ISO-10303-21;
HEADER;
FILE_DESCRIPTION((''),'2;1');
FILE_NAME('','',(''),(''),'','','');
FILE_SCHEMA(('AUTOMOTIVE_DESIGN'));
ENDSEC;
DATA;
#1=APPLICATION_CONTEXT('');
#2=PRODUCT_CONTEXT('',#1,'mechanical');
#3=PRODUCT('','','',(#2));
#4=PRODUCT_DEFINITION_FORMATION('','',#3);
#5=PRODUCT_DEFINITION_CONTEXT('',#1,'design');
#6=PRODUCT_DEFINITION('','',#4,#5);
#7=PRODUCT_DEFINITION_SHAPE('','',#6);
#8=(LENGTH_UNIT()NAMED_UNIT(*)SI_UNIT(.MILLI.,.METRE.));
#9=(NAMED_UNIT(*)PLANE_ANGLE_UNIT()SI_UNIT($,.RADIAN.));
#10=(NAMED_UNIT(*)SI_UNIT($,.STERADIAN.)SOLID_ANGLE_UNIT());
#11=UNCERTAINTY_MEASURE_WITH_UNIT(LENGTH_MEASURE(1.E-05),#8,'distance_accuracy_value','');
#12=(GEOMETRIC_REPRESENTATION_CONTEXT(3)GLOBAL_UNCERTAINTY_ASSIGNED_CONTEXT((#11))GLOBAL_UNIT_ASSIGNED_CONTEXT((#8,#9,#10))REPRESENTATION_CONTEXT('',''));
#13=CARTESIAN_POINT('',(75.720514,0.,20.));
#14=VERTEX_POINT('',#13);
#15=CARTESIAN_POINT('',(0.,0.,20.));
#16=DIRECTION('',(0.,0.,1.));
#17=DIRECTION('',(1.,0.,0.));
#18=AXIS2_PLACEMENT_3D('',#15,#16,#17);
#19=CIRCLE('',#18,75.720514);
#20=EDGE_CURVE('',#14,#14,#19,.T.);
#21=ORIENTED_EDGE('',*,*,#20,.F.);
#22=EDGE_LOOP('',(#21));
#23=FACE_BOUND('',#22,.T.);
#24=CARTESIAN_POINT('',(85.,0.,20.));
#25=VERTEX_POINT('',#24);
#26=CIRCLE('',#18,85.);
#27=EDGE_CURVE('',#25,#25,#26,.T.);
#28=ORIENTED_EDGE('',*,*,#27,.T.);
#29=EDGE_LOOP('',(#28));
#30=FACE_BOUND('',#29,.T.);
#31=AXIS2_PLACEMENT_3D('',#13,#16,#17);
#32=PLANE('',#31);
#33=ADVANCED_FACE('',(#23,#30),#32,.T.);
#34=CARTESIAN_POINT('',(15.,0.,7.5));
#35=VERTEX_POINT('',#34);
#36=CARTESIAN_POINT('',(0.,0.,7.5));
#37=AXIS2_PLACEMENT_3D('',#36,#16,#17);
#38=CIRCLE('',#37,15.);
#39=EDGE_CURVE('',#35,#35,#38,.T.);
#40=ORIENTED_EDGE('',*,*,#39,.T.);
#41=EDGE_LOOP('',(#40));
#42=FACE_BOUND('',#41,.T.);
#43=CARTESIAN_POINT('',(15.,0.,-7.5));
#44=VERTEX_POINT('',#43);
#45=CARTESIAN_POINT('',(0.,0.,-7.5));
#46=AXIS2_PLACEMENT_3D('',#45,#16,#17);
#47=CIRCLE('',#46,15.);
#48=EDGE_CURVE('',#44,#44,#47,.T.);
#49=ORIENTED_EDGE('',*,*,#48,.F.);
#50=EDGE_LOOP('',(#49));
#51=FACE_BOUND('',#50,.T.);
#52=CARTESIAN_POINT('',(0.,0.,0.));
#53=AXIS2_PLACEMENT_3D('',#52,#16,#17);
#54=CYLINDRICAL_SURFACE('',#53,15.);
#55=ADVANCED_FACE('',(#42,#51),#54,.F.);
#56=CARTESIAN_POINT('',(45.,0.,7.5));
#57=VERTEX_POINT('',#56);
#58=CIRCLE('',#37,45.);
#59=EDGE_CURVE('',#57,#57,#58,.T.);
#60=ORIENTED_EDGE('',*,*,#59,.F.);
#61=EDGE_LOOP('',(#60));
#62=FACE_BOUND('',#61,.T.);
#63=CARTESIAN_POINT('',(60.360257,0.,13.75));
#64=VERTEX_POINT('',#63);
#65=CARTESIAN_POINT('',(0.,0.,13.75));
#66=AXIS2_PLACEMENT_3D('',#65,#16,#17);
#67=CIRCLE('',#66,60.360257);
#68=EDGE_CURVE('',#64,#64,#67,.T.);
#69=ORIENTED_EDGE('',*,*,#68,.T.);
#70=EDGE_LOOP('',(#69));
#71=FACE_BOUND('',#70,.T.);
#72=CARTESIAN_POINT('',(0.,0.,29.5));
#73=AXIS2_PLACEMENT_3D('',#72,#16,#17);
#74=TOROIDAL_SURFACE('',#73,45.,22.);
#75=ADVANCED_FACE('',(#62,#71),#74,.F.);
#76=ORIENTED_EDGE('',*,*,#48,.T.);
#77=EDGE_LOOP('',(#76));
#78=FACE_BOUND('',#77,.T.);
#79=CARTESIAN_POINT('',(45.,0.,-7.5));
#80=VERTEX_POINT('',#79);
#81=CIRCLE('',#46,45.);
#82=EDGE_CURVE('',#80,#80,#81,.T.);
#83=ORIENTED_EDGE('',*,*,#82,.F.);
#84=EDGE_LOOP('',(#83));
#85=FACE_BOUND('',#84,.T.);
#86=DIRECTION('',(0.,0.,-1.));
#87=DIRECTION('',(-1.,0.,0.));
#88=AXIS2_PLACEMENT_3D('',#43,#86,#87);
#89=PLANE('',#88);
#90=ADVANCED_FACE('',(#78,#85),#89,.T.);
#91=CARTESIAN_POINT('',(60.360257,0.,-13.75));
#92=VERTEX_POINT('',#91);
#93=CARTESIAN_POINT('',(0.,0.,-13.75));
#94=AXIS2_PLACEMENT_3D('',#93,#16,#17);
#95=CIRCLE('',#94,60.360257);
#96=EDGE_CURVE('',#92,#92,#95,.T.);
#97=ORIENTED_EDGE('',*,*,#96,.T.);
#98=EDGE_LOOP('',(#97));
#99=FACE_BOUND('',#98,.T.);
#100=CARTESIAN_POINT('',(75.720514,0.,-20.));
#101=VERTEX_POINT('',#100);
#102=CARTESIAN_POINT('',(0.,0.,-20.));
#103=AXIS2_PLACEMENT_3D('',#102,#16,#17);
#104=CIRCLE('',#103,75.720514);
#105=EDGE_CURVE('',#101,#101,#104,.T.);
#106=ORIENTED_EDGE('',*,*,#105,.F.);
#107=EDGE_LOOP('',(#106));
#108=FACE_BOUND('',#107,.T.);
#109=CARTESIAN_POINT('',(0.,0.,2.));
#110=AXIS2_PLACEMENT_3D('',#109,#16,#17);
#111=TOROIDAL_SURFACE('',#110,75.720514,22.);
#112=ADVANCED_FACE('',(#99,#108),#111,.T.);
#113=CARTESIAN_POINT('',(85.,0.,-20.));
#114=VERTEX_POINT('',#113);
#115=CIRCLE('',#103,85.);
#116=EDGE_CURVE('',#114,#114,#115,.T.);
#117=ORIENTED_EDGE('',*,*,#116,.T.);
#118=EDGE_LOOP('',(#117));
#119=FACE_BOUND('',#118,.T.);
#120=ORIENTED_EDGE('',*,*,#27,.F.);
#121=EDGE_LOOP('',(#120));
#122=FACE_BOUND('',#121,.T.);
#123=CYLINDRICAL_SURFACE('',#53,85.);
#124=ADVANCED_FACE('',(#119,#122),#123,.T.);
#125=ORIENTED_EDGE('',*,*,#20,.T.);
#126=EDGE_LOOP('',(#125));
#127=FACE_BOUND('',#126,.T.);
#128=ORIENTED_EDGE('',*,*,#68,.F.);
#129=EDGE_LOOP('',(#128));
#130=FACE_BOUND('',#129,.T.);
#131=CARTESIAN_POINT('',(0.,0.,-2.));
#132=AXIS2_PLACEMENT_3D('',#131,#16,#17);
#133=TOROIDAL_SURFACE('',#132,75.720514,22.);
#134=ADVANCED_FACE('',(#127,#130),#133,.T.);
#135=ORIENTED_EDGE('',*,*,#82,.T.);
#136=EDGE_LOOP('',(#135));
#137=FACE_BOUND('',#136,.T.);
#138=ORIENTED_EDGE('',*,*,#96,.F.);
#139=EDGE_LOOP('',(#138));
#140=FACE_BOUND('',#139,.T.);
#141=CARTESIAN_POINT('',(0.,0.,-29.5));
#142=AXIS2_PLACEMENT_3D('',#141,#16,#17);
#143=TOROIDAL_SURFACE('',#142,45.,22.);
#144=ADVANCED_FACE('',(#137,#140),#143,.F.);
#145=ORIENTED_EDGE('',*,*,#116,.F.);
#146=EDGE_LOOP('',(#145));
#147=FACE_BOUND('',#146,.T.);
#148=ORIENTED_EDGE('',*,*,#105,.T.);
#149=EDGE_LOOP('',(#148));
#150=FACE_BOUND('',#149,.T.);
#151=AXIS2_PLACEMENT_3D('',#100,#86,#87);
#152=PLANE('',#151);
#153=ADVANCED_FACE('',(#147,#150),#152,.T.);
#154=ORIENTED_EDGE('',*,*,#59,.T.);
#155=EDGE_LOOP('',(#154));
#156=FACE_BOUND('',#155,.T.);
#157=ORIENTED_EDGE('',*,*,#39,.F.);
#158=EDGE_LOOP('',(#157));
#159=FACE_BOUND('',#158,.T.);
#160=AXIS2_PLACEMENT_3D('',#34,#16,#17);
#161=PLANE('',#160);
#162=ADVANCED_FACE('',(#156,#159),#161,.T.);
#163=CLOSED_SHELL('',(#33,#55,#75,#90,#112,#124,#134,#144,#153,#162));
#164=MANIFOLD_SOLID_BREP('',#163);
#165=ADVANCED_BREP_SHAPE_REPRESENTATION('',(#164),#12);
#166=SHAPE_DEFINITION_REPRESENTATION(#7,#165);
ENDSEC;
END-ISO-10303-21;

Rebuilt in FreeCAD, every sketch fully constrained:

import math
import FreeCAD as App
import Part
import Sketcher
from FreeCAD import Vector

doc = App.newDocument("Part")
body = doc.addObject("PartDesign::Body", "Body")

# Sketch on XZ plane
sketch1 = doc.addObject("Sketcher::SketchObject", "Sketch")
body.addObject(sketch1)
sketch1.AttachmentSupport = (doc.XZ_Plane, [""])
sketch1.MapMode = "FlatFace"
sketch1.addGeometry([
    Part.LineSegment(Vector(15, -7.5, 0), Vector(15, 7.5, 0)),  # 0
    Part.LineSegment(Vector(15, 7.5, 0), Vector(45, 7.5, 0)),  # 1
    Part.ArcOfCircle(Part.Circle(Vector(45, 29.5, 0), Vector(0, 0, 1), 22), math.radians(-90), math.radians(-45.717752)),  # 2
    Part.ArcOfCircle(Part.Circle(Vector(75.720514, -2, 0), Vector(0, 0, 1), 22), math.radians(90), math.radians(134.282248)),  # 3
    Part.LineSegment(Vector(75.720514, 20, 0), Vector(85, 20, 0)),  # 4
    Part.LineSegment(Vector(85, 20, 0), Vector(85, -20, 0)),  # 5
    Part.LineSegment(Vector(85, -20, 0), Vector(75.720514, -20, 0)),  # 6
    Part.ArcOfCircle(Part.Circle(Vector(75.720514, 2, 0), Vector(0, 0, 1), 22), math.radians(-134.282248), math.radians(-90)),  # 7
    Part.ArcOfCircle(Part.Circle(Vector(45, -29.5, 0), Vector(0, 0, 1), 22), math.radians(45.717752), math.radians(90)),  # 8
    Part.LineSegment(Vector(45, -7.5, 0), Vector(15, -7.5, 0)),  # 9
], False)
sketch1.addConstraint([
    Sketcher.Constraint("Coincident", 0, 2, 1, 1),
    Sketcher.Constraint("Tangent", 1, 2, 2, 1),
    Sketcher.Constraint("Tangent", 2, 2, 3, 2),
    Sketcher.Constraint("Tangent", 3, 1, 4, 1),
    Sketcher.Constraint("Coincident", 4, 2, 5, 1),
    Sketcher.Constraint("Coincident", 5, 2, 6, 1),
    Sketcher.Constraint("Tangent", 6, 2, 7, 2),
    Sketcher.Constraint("Tangent", 7, 1, 8, 1),
    Sketcher.Constraint("Tangent", 8, 2, 9, 1),
    Sketcher.Constraint("Coincident", 9, 2, 0, 1),
    Sketcher.Constraint("Vertical", 0),
    Sketcher.Constraint("Horizontal", 1),
    Sketcher.Constraint("Horizontal", 4),
    Sketcher.Constraint("Vertical", 5),
    Sketcher.Constraint("Horizontal", 6),
    Sketcher.Constraint("Horizontal", 9),
    Sketcher.Constraint("Equal", 2, 3),
    Sketcher.Constraint("Equal", 3, 7),
    Sketcher.Constraint("Equal", 7, 8),
    Sketcher.Constraint("Symmetric", 3, 3, 7, 3, -1),
    Sketcher.Constraint("Vertical", 2, 3, 8, 3),
    Sketcher.Constraint("Radius", 2, 22.0),
    Sketcher.Constraint("DistanceX", 1, 1, 1, 2, 30.0),
    Sketcher.Constraint("DistanceY", 0, 1, 0, 2, 15.0),
    Sketcher.Constraint("DistanceY", 5, 2, 5, 1, 40.0),
    Sketcher.Constraint("DistanceX", -1, 1, 2, 3, 45.0),
    Sketcher.Constraint("DistanceX", -1, 1, 4, 2, 85.0),
])
revolution = doc.addObject("PartDesign::Revolution", "Revolution")
body.addObject(revolution)
revolution.Profile = sketch1
revolution.ReferenceAxis = (sketch1, ["V_Axis"])
revolution.Angle = 360

doc.recompute()
